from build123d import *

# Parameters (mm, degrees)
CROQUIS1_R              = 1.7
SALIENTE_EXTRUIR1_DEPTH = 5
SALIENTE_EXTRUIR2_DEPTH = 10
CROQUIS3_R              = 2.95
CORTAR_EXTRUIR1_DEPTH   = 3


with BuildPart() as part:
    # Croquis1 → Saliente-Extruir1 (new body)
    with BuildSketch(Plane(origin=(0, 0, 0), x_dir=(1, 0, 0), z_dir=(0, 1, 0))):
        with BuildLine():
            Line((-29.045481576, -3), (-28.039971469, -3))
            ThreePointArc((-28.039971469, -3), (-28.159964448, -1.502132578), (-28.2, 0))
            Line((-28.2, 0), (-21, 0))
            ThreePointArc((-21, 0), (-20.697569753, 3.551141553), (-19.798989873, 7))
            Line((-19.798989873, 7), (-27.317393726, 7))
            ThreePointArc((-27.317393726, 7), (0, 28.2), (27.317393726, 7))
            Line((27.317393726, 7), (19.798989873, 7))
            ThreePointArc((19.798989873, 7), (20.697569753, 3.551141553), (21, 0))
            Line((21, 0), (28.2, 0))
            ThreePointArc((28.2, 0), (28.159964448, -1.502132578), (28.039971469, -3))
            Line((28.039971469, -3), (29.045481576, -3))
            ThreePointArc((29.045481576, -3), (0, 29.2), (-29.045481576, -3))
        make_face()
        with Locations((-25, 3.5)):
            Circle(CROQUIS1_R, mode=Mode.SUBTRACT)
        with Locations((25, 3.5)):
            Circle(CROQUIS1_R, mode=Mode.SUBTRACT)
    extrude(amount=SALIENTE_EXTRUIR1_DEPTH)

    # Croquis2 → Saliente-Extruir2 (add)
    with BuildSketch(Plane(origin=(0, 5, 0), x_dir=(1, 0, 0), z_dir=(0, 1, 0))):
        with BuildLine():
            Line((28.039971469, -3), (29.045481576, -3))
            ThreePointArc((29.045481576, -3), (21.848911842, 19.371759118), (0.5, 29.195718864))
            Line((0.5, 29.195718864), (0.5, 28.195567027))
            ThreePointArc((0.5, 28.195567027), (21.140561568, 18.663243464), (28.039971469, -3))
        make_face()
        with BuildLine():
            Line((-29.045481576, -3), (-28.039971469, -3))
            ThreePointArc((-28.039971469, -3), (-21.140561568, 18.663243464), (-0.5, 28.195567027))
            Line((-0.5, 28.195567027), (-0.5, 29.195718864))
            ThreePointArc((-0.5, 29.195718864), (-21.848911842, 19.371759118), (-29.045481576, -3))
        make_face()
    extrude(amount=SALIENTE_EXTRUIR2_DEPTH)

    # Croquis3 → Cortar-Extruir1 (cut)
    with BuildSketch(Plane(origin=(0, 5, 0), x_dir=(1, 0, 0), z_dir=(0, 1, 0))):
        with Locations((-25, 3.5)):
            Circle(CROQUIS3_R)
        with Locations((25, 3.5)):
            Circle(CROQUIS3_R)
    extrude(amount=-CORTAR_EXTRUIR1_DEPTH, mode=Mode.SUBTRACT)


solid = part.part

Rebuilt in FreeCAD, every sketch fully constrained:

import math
import FreeCAD as App
import Part
import Sketcher
from FreeCAD import Vector

doc = App.newDocument("Part")
body = doc.addObject("PartDesign::Body", "Body")

# Sketch on XZ plane
sketch1 = body.newObject("Sketcher::SketchObject", "Sketch")
sketch1.AttachmentSupport = (doc.getObject("XZ_Plane"), [""])
sketch1.MapMode = "FlatFace"
sketch1.addGeometry([
    Part.LineSegment(Vector(-29, 3, 0), Vector(-28, 3, 0)),  # 0
    Part.ArcOfCircle(Part.Circle(Vector(0, 0, 0), Vector(0, 0, 1), 28.2), math.radians(173.89), math.radians(180)),  # 1
    Part.LineSegment(Vector(-28.2, 0, 0), Vector(-21, 0, 0)),  # 2
    Part.ArcOfCircle(Part.Circle(Vector(0, 0, 0), Vector(0, 0, 1), 21), math.radians(180), math.radians(199.47)),  # 3
    Part.LineSegment(Vector(-19.8, -7, 0), Vector(-27.3, -7, 0)),  # 4
    Part.ArcOfCircle(Part.Circle(Vector(0, 0, 0), Vector(0, 0, 1), 28.2), math.radians(-166), math.radians(-14)),  # 5
    Part.LineSegment(Vector(27.3, -7, 0), Vector(19.8, -7, 0)),  # 6
    Part.ArcOfCircle(Part.Circle(Vector(0, 0, 0), Vector(0, 0, 1), 21), math.radians(-19.47), math.radians(0)),  # 7
    Part.LineSegment(Vector(21, 0, 0), Vector(28.2, 0, 0)),  # 8
    Part.ArcOfCircle(Part.Circle(Vector(0, 0, 0), Vector(0, 0, 1), 28.2), math.radians(0), math.radians(6.11)),  # 9
    Part.LineSegment(Vector(28, 3, 0), Vector(29, 3, 0)),  # 10
    Part.ArcOfCircle(Part.Circle(Vector(0, 0, 0), Vector(0, 0, 1), 29.2), math.radians(174), math.radians(366)),  # 11
    Part.Circle(Vector(-25, -3.5, 0), Vector(0, 0, 1), 1.7),  # 12
    Part.Circle(Vector(25, -3.5, 0), Vector(0, 0, 1), 1.7),  # 13
], False)
sketch1.addConstraint([
    Sketcher.Constraint("Coincident", 0, 2, 1, 1),
    Sketcher.Constraint("Coincident", 1, 2, 2, 1),
    Sketcher.Constraint("Coincident", 2, 2, 3, 1),
    Sketcher.Constraint("Coincident", 3, 2, 4, 1),
    Sketcher.Constraint("Coincident", 4, 2, 5, 1),
    Sketcher.Constraint("Coincident", 5, 2, 6, 1),
    Sketcher.Constraint("Coincident", 6, 2, 7, 1),
    Sketcher.Constraint("Coincident", 7, 2, 8, 1),
    Sketcher.Constraint("Coincident", 8, 2, 9, 1),
    Sketcher.Constraint("Coincident", 9, 2, 10, 1),
    Sketcher.Constraint("Coincident", 10, 2, 11, 2),
    Sketcher.Constraint("Coincident", 11, 1, 0, 1),
    Sketcher.Constraint("Horizontal", 0),
    Sketcher.Constraint("Horizontal", 2),
    Sketcher.Constraint("Horizontal", 4),
    Sketcher.Constraint("Horizontal", 6),
    Sketcher.Constraint("Horizontal", 8),
    Sketcher.Constraint("Horizontal", 10),
    Sketcher.Constraint("Coincident", 1, 3, -1, 1),
    Sketcher.Constraint("Coincident", 3, 3, -1, 1),
    Sketcher.Constraint("Coincident", 5, 3, -1, 1),
    Sketcher.Constraint("Coincident", 7, 3, -1, 1),
    Sketcher.Constraint("Coincident", 9, 3, -1, 1),
    Sketcher.Constraint("Coincident", 11, 3, -1, 1),
    Sketcher.Constraint("Equal", 1, 5),
    Sketcher.Constraint("Equal", 3, 7),
    Sketcher.Constraint("Equal", 5, 9),
    Sketcher.Constraint("Equal", 12, 13),
    Sketcher.Constraint("Symmetric", 12, 3, 13, 3, -2),
    Sketcher.Constraint("PointOnObject", 1, 2, -1),
    Sketcher.Constraint("PointOnObject", 7, 2, -1),
    Sketcher.Constraint("Horizontal", 4, 2, 5, 2),
    Sketcher.Constraint("Horizontal", 0, 2, 9, 2),
    Sketcher.Constraint("Radius", 3, 21.0),
    Sketcher.Constraint("Diameter", 12, 3.4),
    Sketcher.Constraint("Radius", 1, 28.2),
    Sketcher.Constraint("Radius", 11, 29.2),
    Sketcher.Constraint("DistanceX", 12, 3, -1, 1, 25.0),
    Sketcher.Constraint("DistanceY", -1, 1, 0, 2, 3.0),
    Sketcher.Constraint("DistanceY", 3, 2, -1, 1, 7.0),
    Sketcher.Constraint("DistanceY", 12, 3, -1, 1, 3.5),
])
pad1 = body.newObject("PartDesign::Pad", "Pad")
pad1.Profile = sketch1
pad1.Length = 5
pad1.Reversed = True

# Sketch on XZ plane
sketch2 = body.newObject("Sketcher::SketchObject", "Sketch001")
sketch2.AttachmentSupport = (doc.getObject("XZ_Plane"), [""])
sketch2.MapMode = "FlatFace"
sketch2.AttachmentOffset = App.Placement(Vector(0, 0, -5), App.Rotation())
sketch2.addGeometry([
    Part.LineSegment(Vector(28, 3, 0), Vector(29, 3, 0)),  # 0
    Part.ArcOfCircle(Part.Circle(Vector(0, 0, 0), Vector(0, 0, 1), 29.2), math.radians(-89), math.radians(6)),  # 1
    Part.LineSegment(Vector(0.5, -29.2, 0), Vector(0.5, -28.2, 0)),  # 2
    Part.ArcOfCircle(Part.Circle(Vector(0, 0, 0), Vector(0, 0, 1), 28.2), math.radians(-89), math.radians(6)),  # 3
    Part.LineSegment(Vector(-29, 3, 0), Vector(-28, 3, 0)),  # 4
    Part.ArcOfCircle(Part.Circle(Vector(0, 0, 0), Vector(0, 0, 1), 28.2), math.radians(174), math.radians(269)),  # 5
    Part.LineSegment(Vector(-0.5, -28.2, 0), Vector(-0.5, -29.2, 0)),  # 6
    Part.ArcOfCircle(Part.Circle(Vector(0, 0, 0), Vector(0, 0, 1), 29.2), math.radians(174), math.radians(269)),  # 7
], False)
sketch2.addConstraint([
    Sketcher.Constraint("Coincident", 0, 2, 1, 2),
    Sketcher.Constraint("Coincident", 1, 1, 2, 1),
    Sketcher.Constraint("Coincident", 2, 2, 3, 1),
    Sketcher.Constraint("Coincident", 3, 2, 0, 1),
    Sketcher.Constraint("Coincident", 4, 2, 5, 1),
    Sketcher.Constraint("Coincident", 5, 2, 6, 1),
    Sketcher.Constraint("Coincident", 6, 2, 7, 2),
    Sketcher.Constraint("Coincident", 7, 1, 4, 1),
    Sketcher.Constraint("Horizontal", 0),
    Sketcher.Constraint("Vertical", 2),
    Sketcher.Constraint("Horizontal", 4),
    Sketcher.Constraint("Vertical", 6),
    Sketcher.Constraint("Coincident", 1, 3, -1, 1),
    Sketcher.Constraint("Coincident", 3, 3, -1, 1),
    Sketcher.Constraint("Coincident", 5, 3, -1, 1),
    Sketcher.Constraint("Coincident", 7, 3, -1, 1),
    Sketcher.Constraint("Equal", 3, 5),
    Sketcher.Constraint("Equal", 1, 7),
    Sketcher.Constraint("Horizontal", 3, 2, 4, 2),
    Sketcher.Constraint("Horizontal", 2, 2, 5, 2),
    Sketcher.Constraint("Radius", 1, 29.2),
    Sketcher.Constraint("Radius", 3, 28.2),
    Sketcher.Constraint("DistanceY", -1, 1, 0, 2, 3.0),
    Sketcher.Constraint("DistanceX", 5, 2, 2, 2, 1.0),
])
pad2 = body.newObject("PartDesign::Pad", "Pad001")
pad2.Profile = sketch2
pad2.Length = 10
pad2.Reversed = True

# Sketch on XZ plane
sketch3 = body.newObject("Sketcher::SketchObject", "Sketch002")
sketch3.AttachmentSupport = (doc.getObject("XZ_Plane"), [""])
sketch3.MapMode = "FlatFace"
sketch3.AttachmentOffset = App.Placement(Vector(0, 0, -5), App.Rotation())
sketch3.addGeometry([
    Part.Circle(Vector(-25, -3.5, 0), Vector(0, 0, 1), 3),
    Part.Circle(Vector(25, -3.5, 0), Vector(0, 0, 1), 3),
], False)
sketch3.addConstraint([
    Sketcher.Constraint("Equal", 0, 1),
    Sketcher.Constraint("Symmetric", 0, 3, 1, 3, -2),
    Sketcher.Constraint("Diameter", 0, 5.9),
    Sketcher.Constraint("DistanceX", 0, 3, -1, 1, 25.0),
    Sketcher.Constraint("DistanceY", 0, 3, -1, 1, 3.5),
])
pocket1 = body.newObject("PartDesign::Pocket", "Pocket")
pocket1.Profile = sketch3
pocket1.Length = 3
pocket1.Reversed = True

doc.recompute()
